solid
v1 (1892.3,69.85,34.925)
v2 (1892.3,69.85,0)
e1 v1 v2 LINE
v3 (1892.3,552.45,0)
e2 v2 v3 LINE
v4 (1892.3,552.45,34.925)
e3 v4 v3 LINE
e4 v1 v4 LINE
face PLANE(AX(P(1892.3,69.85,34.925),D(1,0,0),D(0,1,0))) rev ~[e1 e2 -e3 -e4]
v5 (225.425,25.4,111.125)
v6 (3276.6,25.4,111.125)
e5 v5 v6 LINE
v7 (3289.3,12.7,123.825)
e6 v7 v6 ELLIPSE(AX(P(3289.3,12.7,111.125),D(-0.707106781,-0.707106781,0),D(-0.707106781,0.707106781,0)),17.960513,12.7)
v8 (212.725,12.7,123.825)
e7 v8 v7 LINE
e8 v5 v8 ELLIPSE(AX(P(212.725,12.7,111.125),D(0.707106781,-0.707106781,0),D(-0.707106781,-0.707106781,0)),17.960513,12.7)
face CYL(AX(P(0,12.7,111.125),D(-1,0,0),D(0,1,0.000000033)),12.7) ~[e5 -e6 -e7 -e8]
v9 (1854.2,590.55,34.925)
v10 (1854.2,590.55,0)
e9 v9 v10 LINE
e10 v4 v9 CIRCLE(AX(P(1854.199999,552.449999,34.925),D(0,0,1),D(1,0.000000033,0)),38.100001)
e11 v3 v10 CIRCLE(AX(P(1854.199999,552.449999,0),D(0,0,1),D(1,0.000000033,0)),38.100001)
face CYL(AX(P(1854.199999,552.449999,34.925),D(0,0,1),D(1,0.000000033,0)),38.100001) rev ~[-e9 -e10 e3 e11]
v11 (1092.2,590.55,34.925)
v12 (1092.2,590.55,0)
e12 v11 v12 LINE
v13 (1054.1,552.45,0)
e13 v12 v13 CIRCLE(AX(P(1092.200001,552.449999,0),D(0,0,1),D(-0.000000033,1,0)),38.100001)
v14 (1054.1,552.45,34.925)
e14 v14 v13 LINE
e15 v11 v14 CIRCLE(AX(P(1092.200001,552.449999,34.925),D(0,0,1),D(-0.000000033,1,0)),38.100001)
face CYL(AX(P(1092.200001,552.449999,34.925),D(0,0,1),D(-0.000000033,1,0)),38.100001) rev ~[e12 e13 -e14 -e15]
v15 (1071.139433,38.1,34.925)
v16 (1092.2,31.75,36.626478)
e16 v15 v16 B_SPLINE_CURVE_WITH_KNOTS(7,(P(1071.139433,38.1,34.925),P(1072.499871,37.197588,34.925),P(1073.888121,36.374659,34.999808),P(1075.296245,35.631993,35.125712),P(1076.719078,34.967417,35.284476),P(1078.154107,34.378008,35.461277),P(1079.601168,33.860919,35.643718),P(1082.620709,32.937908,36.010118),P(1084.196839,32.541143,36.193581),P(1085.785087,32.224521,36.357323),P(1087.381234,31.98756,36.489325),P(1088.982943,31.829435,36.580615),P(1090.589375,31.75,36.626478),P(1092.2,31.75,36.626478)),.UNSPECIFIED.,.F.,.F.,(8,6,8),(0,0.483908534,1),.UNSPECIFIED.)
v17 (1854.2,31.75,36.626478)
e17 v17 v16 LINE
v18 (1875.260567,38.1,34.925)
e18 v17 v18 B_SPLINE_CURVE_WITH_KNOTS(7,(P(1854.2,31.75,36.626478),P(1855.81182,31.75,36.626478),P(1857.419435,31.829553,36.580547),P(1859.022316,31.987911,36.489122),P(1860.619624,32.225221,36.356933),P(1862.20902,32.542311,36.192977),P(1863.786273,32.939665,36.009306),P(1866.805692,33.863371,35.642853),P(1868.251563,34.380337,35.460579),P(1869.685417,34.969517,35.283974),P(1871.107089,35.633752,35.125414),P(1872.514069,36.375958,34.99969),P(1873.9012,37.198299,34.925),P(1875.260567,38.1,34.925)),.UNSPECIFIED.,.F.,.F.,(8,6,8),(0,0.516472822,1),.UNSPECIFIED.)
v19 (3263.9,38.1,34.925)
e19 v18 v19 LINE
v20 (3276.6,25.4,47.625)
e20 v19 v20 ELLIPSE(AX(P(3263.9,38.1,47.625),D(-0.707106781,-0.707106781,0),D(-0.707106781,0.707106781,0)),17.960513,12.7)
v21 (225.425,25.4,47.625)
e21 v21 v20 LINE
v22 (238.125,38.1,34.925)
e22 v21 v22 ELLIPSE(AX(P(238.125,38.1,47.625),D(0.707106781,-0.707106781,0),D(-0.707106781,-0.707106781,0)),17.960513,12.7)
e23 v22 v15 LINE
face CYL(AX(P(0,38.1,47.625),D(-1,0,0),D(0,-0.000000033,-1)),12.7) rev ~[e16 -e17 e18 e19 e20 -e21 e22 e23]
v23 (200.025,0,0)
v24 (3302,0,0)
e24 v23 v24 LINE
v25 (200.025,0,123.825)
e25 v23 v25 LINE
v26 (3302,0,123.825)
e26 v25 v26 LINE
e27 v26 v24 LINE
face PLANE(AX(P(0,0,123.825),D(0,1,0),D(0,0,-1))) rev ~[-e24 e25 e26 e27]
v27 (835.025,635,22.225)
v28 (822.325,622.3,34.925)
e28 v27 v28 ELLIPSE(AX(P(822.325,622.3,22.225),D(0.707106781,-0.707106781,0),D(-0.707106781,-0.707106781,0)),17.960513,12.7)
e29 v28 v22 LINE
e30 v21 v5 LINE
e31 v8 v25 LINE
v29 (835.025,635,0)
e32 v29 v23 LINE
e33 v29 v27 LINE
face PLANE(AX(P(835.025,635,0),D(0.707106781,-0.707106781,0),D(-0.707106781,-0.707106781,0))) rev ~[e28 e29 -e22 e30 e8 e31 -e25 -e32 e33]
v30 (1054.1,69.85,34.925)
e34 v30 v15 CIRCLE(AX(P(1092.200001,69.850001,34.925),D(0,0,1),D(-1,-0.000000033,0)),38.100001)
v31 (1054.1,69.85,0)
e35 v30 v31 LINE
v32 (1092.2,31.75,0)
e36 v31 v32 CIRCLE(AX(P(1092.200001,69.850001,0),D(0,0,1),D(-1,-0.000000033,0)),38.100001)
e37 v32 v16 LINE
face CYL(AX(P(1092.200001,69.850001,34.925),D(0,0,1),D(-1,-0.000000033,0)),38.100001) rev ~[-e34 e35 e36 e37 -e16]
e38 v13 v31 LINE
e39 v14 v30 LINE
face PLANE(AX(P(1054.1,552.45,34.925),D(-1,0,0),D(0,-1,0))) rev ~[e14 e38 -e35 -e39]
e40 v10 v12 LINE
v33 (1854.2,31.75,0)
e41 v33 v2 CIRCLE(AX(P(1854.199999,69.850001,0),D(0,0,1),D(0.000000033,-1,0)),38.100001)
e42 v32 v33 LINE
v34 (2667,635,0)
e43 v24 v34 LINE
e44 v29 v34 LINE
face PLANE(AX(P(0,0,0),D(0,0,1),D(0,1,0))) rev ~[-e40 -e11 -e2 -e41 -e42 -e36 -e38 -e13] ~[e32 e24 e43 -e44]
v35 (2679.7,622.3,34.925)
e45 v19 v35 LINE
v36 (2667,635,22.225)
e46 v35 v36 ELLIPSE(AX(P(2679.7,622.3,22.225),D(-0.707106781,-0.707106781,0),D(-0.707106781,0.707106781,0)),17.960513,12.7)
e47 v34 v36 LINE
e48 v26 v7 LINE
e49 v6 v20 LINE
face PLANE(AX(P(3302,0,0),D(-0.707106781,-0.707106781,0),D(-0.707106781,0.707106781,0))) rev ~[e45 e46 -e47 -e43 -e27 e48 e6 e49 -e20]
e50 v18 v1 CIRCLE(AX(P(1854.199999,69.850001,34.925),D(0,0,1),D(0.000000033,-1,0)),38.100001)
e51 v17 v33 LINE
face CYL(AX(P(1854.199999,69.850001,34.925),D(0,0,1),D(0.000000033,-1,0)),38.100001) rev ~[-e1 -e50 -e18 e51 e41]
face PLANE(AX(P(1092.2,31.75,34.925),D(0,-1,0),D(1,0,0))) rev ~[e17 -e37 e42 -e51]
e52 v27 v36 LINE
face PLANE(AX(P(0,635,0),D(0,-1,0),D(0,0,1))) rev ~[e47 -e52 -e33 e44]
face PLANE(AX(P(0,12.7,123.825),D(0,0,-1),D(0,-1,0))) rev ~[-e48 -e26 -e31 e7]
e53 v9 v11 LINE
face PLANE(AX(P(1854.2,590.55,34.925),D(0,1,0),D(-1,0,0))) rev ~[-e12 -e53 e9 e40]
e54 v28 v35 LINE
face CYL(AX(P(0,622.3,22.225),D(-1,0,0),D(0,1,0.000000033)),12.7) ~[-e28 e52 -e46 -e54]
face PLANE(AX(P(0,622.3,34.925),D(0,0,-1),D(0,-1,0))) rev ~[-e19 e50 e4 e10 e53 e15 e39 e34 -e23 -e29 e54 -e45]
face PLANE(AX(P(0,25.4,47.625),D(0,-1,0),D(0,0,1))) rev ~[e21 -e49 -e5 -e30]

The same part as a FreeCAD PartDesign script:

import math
import FreeCAD as App
import Part
import Sketcher
from FreeCAD import Vector
Q = App.Units.Quantity


def add_polygon(sketch, points):
    """Adds a closed chain of lines whose ends are joined by coincident constraints."""
    first, n = sketch.GeometryCount, len(points)
    for a, b in zip(points, points[1:] + points[:1]):
        sketch.addGeometry(Part.LineSegment(App.Vector(*a, 0), App.Vector(*b, 0)), False)
    for i in range(n):
        sketch.addConstraint(Sketcher.Constraint("Coincident", first + i, 2, first + (i + 1) % n, 1))

doc = App.newDocument("Part")
body = doc.addObject("PartDesign::Body", "Body")

sketch1 = body.newObject("Sketcher::SketchObject", "Sketch")
sketch1.AttachmentSupport = (doc.getObject("YZ_Plane"), [""])
sketch1.MapMode = "FlatFace"
sketch1.addGeometry(Part.LineSegment(Vector(0, 0, 0), Vector(635, 0, 0)), False)
sketch1.addGeometry(Part.LineSegment(Vector(635, 0, 0), Vector(635, 22, 0)), False)
sketch1.addGeometry(Part.ArcOfCircle(Part.Circle(Vector(622, 22, 0), Vector(0, 0, 1), 13), math.radians(0), math.radians(90)), False)
sketch1.addGeometry(Part.LineSegment(Vector(622, 35, 0), Vector(38, 35, 0)), False)
sketch1.addGeometry(Part.ArcOfCircle(Part.Circle(Vector(38, 48, 0), Vector(0, 0, 1), 13), math.radians(-180), math.radians(-90)), False)
sketch1.addGeometry(Part.LineSegment(Vector(25, 48, 0), Vector(25, 111, 0)), False)
sketch1.addGeometry(Part.ArcOfCircle(Part.Circle(Vector(13, 111, 0), Vector(0, 0, 1), 13), math.radians(0), math.radians(90)), False)
sketch1.addGeometry(Part.LineSegment(Vector(13, 124, 0), Vector(0, 124, 0)), False)
sketch1.addGeometry(Part.LineSegment(Vector(0, 124, 0), Vector(0, 0, 0)), False)
sketch1.addConstraint(Sketcher.Constraint("Coincident", 0, 2, 1, 1))
sketch1.addConstraint(Sketcher.Constraint("Tangent", 1, 2, 2, 1))
sketch1.addConstraint(Sketcher.Constraint("Tangent", 2, 2, 3, 1))
sketch1.addConstraint(Sketcher.Constraint("Tangent", 3, 2, 4, 2))
sketch1.addConstraint(Sketcher.Constraint("Tangent", 4, 1, 5, 1))
sketch1.addConstraint(Sketcher.Constraint("Tangent", 5, 2, 6, 1))
sketch1.addConstraint(Sketcher.Constraint("Tangent", 6, 2, 7, 1))
sketch1.addConstraint(Sketcher.Constraint("Coincident", 7, 2, 8, 1))
sketch1.addConstraint(Sketcher.Constraint("Coincident", 8, 2, 0, 1))
sketch1.addConstraint(Sketcher.Constraint("Horizontal", 0))
sketch1.addConstraint(Sketcher.Constraint("Vertical", 1))
sketch1.addConstraint(Sketcher.Constraint("Horizontal", 3))
sketch1.addConstraint(Sketcher.Constraint("Vertical", 5))
sketch1.addConstraint(Sketcher.Constraint("Horizontal", 7))
sketch1.addConstraint(Sketcher.Constraint("Vertical", 8))
sketch1.addConstraint(Sketcher.Constraint("Coincident", 8, 2, -1, 1))
sketch1.addConstraint(Sketcher.Constraint("Equal", 2, 4))
sketch1.addConstraint(Sketcher.Constraint("Equal", 4, 6))
sketch1.addConstraint(Sketcher.Constraint("Radius", 2, Q("0.5 in")))
sketch1.addConstraint(Sketcher.Constraint("DistanceX", 0, 1, 0, 2, Q("25 in")))
sketch1.addConstraint(Sketcher.Constraint("DistanceX", 3, 2, 3, 1, Q("23 in")))
sketch1.addConstraint(Sketcher.Constraint("DistanceY", 5, 1, 5, 2, Q("2.5 in")))
sketch1.addConstraint(Sketcher.Constraint("DistanceY", 1, 1, 1, 2, Q("0.875 in")))
pad1 = body.newObject("PartDesign::Pad", "Pad")
pad1.Profile = sketch1
pad1.Length = Q("130 in")

sketch2 = body.newObject("Sketcher::SketchObject", "Sketch001")
sketch2.AttachmentSupport = (doc.getObject("XY_Plane"), [""])
sketch2.MapMode = "FlatFace"
add_polygon(sketch2, [(3302, 635), (3302, 0), (2667, 635)])
add_polygon(sketch2, [(0, 635), (835, 635), (200, 0), (0, 0)])
sketch2.addConstraint(Sketcher.Constraint("Vertical", 0))
sketch2.addConstraint(Sketcher.Constraint("Horizontal", 2))
sketch2.addConstraint(Sketcher.Constraint("Horizontal", 3))
sketch2.addConstraint(Sketcher.Constraint("Horizontal", 5))
sketch2.addConstraint(Sketcher.Constraint("Vertical", 6))
sketch2.addConstraint(Sketcher.Constraint("Coincident", 5, 2, -1, 1))
sketch2.addConstraint(Sketcher.Constraint("PointOnObject", 0, 2, -1))
sketch2.addConstraint(Sketcher.Constraint("Perpendicular", 1, 4))
sketch2.addConstraint(Sketcher.Constraint("Horizontal", 2, 2, 3, 2))
sketch2.addConstraint(Sketcher.Constraint("Equal", 2, 0))
sketch2.addConstraint(Sketcher.Constraint("DistanceX", 2, 1, 2, 2, Q("25 in")))
sketch2.addConstraint(Sketcher.Constraint("DistanceX", -1, 1, 0, 2, Q("130 in")))
sketch2.addConstraint(Sketcher.Constraint("DistanceX", 3, 1, 3, 2, Q("32.875 in")))
pocket1 = body.newObject("PartDesign::Pocket", "Pocket")
pocket1.Profile = sketch2
pocket1.Length = Q("10 in")
pocket1.Reversed = True

sketch3 = body.newObject("Sketcher::SketchObject", "Sketch002")
sketch3.AttachmentSupport = (doc.getObject("XY_Plane"), [""])
sketch3.MapMode = "FlatFace"
sketch3.AttachmentOffset = App.Placement(Vector(0, 0, 1.375 * 25.4), App.Rotation())
sketch3.addGeometry(Part.LineSegment(Vector(1092, 32, 0), Vector(1854, 32, 0)), False)
sketch3.addGeometry(Part.ArcOfCircle(Part.Circle(Vector(1854, 70, 0), Vector(0, 0, 1), 38), math.radians(-90), math.radians(0)), False)
sketch3.addGeometry(Part.LineSegment(Vector(1892, 70, 0), Vector(1892, 552, 0)), False)
sketch3.addGeometry(Part.ArcOfCircle(Part.Circle(Vector(1854, 552, 0), Vector(0, 0, 1), 38), math.radians(0), math.radians(90)), False)
sketch3.addGeometry(Part.LineSegment(Vector(1854, 591, 0), Vector(1092, 591, 0)), False)
sketch3.addGeometry(Part.ArcOfCircle(Part.Circle(Vector(1092, 552, 0), Vector(0, 0, 1), 38), math.radians(90), math.radians(180)), False)
sketch3.addGeometry(Part.LineSegment(Vector(1054, 552, 0), Vector(1054, 70, 0)), False)
sketch3.addGeometry(Part.ArcOfCircle(Part.Circle(Vector(1092, 70, 0), Vector(0, 0, 1), 38), math.radians(-180), math.radians(-90)), False)
sketch3.addConstraint(Sketcher.Constraint("Tangent", 0, 2, 1, 1))
sketch3.addConstraint(Sketcher.Constraint("Tangent", 1, 2, 2, 1))
sketch3.addConstraint(Sketcher.Constraint("Tangent", 2, 2, 3, 1))
sketch3.addConstraint(Sketcher.Constraint("Tangent", 3, 2, 4, 1))
sketch3.addConstraint(Sketcher.Constraint("Tangent", 4, 2, 5, 1))
sketch3.addConstraint(Sketcher.Constraint("Tangent", 5, 2, 6, 1))
sketch3.addConstraint(Sketcher.Constraint("Tangent", 6, 2, 7, 1))
sketch3.addConstraint(Sketcher.Constraint("Tangent", 7, 2, 0, 1))
sketch3.addConstraint(Sketcher.Constraint("Horizontal", 0))
sketch3.addConstraint(Sketcher.Constraint("Vertical", 2))
sketch3.addConstraint(Sketcher.Constraint("Horizontal", 4))
sketch3.addConstraint(Sketcher.Constraint("Vertical", 6))
sketch3.addConstraint(Sketcher.Constraint("Equal", 1, 3))
sketch3.addConstraint(Sketcher.Constraint("Equal", 3, 5))
sketch3.addConstraint(Sketcher.Constraint("Equal", 5, 7))
sketch3.addConstraint(Sketcher.Constraint("Radius", 1, Q("1.5 in")))
sketch3.addConstraint(Sketcher.Constraint("DistanceX", 0, 1, 0, 2, Q("30 in")))
sketch3.addConstraint(Sketcher.Constraint("DistanceY", 2, 1, 2, 2, Q("19 in")))
sketch3.addConstraint(Sketcher.Constraint("DistanceX", -1, 1, 1, 3, Q("73 in")))
sketch3.addConstraint(Sketcher.Constraint("DistanceY", -1, 1, 1, 3, Q("2.75 in")))
pocket2 = body.newObject("PartDesign::Pocket", "Pocket001")
pocket2.Profile = sketch3
pocket2.Length = Q("5 in")

sketch4 = body.newObject("Sketcher::SketchObject", "Sketch003")
sketch4.AttachmentSupport = (doc.getObject("XY_Plane"), [""])
sketch4.MapMode = "FlatFace"
sketch4.AttachmentOffset = App.Placement(Vector(0, 0, 1.375 * 25.4), App.Rotation())
sketch4.addGeometry(Part.LineSegment(Vector(1092, 32, 0), Vector(1854, 32, 0)), False)
sketch4.addGeometry(Part.ArcOfCircle(Part.Circle(Vector(1854, 70, 0), Vector(0, 0, 1), 38), math.radians(-90), math.radians(0)), False)
sketch4.addGeometry(Part.LineSegment(Vector(1892, 70, 0), Vector(1892, 552, 0)), False)
sketch4.addGeometry(Part.ArcOfCircle(Part.Circle(Vector(1854, 552, 0), Vector(0, 0, 1), 38), math.radians(0), math.radians(90)), False)
sketch4.addGeometry(Part.LineSegment(Vector(1854, 591, 0), Vector(1092, 591, 0)), False)
sketch4.addGeometry(Part.ArcOfCircle(Part.Circle(Vector(1092, 552, 0), Vector(0, 0, 1), 38), math.radians(90), math.radians(180)), False)
sketch4.addGeometry(Part.LineSegment(Vector(1054, 552, 0), Vector(1054, 70, 0)), False)
sketch4.addGeometry(Part.ArcOfCircle(Part.Circle(Vector(1092, 70, 0), Vector(0, 0, 1), 38), math.radians(-180), math.radians(-90)), False)
sketch4.addConstraint(Sketcher.Constraint("Tangent", 0, 2, 1, 1))
sketch4.addConstraint(Sketcher.Constraint("Tangent", 1, 2, 2, 1))
sketch4.addConstraint(Sketcher.Constraint("Tangent", 2, 2, 3, 1))
sketch4.addConstraint(Sketcher.Constraint("Tangent", 3, 2, 4, 1))
sketch4.addConstraint(Sketcher.Constraint("Tangent", 4, 2, 5, 1))
sketch4.addConstraint(Sketcher.Constraint("Tangent", 5, 2, 6, 1))
sketch4.addConstraint(Sketcher.Constraint("Tangent", 6, 2, 7, 1))
sketch4.addConstraint(Sketcher.Constraint("Tangent", 7, 2, 0, 1))
sketch4.addConstraint(Sketcher.Constraint("Horizontal", 0))
sketch4.addConstraint(Sketcher.Constraint("Vertical", 2))
sketch4.addConstraint(Sketcher.Constraint("Horizontal", 4))
sketch4.addConstraint(Sketcher.Constraint("Vertical", 6))
sketch4.addConstraint(Sketcher.Constraint("Equal", 1, 3))
sketch4.addConstraint(Sketcher.Constraint("Equal", 3, 5))
sketch4.addConstraint(Sketcher.Constraint("Equal", 5, 7))
sketch4.addConstraint(Sketcher.Constraint("Radius", 1, Q("1.5 in")))
sketch4.addConstraint(Sketcher.Constraint("DistanceX", 0, 1, 0, 2, Q("30 in")))
sketch4.addConstraint(Sketcher.Constraint("DistanceY", 2, 1, 2, 2, Q("19 in")))
sketch4.addConstraint(Sketcher.Constraint("DistanceX", -1, 1, 1, 3, Q("73 in")))
sketch4.addConstraint(Sketcher.Constraint("DistanceY", -1, 1, 1, 3, Q("2.75 in")))
pocket3 = body.newObject("PartDesign::Pocket", "Pocket002")
pocket3.Profile = sketch4
pocket3.Length = Q("10 in")
pocket3.Reversed = True

doc.recompute()
